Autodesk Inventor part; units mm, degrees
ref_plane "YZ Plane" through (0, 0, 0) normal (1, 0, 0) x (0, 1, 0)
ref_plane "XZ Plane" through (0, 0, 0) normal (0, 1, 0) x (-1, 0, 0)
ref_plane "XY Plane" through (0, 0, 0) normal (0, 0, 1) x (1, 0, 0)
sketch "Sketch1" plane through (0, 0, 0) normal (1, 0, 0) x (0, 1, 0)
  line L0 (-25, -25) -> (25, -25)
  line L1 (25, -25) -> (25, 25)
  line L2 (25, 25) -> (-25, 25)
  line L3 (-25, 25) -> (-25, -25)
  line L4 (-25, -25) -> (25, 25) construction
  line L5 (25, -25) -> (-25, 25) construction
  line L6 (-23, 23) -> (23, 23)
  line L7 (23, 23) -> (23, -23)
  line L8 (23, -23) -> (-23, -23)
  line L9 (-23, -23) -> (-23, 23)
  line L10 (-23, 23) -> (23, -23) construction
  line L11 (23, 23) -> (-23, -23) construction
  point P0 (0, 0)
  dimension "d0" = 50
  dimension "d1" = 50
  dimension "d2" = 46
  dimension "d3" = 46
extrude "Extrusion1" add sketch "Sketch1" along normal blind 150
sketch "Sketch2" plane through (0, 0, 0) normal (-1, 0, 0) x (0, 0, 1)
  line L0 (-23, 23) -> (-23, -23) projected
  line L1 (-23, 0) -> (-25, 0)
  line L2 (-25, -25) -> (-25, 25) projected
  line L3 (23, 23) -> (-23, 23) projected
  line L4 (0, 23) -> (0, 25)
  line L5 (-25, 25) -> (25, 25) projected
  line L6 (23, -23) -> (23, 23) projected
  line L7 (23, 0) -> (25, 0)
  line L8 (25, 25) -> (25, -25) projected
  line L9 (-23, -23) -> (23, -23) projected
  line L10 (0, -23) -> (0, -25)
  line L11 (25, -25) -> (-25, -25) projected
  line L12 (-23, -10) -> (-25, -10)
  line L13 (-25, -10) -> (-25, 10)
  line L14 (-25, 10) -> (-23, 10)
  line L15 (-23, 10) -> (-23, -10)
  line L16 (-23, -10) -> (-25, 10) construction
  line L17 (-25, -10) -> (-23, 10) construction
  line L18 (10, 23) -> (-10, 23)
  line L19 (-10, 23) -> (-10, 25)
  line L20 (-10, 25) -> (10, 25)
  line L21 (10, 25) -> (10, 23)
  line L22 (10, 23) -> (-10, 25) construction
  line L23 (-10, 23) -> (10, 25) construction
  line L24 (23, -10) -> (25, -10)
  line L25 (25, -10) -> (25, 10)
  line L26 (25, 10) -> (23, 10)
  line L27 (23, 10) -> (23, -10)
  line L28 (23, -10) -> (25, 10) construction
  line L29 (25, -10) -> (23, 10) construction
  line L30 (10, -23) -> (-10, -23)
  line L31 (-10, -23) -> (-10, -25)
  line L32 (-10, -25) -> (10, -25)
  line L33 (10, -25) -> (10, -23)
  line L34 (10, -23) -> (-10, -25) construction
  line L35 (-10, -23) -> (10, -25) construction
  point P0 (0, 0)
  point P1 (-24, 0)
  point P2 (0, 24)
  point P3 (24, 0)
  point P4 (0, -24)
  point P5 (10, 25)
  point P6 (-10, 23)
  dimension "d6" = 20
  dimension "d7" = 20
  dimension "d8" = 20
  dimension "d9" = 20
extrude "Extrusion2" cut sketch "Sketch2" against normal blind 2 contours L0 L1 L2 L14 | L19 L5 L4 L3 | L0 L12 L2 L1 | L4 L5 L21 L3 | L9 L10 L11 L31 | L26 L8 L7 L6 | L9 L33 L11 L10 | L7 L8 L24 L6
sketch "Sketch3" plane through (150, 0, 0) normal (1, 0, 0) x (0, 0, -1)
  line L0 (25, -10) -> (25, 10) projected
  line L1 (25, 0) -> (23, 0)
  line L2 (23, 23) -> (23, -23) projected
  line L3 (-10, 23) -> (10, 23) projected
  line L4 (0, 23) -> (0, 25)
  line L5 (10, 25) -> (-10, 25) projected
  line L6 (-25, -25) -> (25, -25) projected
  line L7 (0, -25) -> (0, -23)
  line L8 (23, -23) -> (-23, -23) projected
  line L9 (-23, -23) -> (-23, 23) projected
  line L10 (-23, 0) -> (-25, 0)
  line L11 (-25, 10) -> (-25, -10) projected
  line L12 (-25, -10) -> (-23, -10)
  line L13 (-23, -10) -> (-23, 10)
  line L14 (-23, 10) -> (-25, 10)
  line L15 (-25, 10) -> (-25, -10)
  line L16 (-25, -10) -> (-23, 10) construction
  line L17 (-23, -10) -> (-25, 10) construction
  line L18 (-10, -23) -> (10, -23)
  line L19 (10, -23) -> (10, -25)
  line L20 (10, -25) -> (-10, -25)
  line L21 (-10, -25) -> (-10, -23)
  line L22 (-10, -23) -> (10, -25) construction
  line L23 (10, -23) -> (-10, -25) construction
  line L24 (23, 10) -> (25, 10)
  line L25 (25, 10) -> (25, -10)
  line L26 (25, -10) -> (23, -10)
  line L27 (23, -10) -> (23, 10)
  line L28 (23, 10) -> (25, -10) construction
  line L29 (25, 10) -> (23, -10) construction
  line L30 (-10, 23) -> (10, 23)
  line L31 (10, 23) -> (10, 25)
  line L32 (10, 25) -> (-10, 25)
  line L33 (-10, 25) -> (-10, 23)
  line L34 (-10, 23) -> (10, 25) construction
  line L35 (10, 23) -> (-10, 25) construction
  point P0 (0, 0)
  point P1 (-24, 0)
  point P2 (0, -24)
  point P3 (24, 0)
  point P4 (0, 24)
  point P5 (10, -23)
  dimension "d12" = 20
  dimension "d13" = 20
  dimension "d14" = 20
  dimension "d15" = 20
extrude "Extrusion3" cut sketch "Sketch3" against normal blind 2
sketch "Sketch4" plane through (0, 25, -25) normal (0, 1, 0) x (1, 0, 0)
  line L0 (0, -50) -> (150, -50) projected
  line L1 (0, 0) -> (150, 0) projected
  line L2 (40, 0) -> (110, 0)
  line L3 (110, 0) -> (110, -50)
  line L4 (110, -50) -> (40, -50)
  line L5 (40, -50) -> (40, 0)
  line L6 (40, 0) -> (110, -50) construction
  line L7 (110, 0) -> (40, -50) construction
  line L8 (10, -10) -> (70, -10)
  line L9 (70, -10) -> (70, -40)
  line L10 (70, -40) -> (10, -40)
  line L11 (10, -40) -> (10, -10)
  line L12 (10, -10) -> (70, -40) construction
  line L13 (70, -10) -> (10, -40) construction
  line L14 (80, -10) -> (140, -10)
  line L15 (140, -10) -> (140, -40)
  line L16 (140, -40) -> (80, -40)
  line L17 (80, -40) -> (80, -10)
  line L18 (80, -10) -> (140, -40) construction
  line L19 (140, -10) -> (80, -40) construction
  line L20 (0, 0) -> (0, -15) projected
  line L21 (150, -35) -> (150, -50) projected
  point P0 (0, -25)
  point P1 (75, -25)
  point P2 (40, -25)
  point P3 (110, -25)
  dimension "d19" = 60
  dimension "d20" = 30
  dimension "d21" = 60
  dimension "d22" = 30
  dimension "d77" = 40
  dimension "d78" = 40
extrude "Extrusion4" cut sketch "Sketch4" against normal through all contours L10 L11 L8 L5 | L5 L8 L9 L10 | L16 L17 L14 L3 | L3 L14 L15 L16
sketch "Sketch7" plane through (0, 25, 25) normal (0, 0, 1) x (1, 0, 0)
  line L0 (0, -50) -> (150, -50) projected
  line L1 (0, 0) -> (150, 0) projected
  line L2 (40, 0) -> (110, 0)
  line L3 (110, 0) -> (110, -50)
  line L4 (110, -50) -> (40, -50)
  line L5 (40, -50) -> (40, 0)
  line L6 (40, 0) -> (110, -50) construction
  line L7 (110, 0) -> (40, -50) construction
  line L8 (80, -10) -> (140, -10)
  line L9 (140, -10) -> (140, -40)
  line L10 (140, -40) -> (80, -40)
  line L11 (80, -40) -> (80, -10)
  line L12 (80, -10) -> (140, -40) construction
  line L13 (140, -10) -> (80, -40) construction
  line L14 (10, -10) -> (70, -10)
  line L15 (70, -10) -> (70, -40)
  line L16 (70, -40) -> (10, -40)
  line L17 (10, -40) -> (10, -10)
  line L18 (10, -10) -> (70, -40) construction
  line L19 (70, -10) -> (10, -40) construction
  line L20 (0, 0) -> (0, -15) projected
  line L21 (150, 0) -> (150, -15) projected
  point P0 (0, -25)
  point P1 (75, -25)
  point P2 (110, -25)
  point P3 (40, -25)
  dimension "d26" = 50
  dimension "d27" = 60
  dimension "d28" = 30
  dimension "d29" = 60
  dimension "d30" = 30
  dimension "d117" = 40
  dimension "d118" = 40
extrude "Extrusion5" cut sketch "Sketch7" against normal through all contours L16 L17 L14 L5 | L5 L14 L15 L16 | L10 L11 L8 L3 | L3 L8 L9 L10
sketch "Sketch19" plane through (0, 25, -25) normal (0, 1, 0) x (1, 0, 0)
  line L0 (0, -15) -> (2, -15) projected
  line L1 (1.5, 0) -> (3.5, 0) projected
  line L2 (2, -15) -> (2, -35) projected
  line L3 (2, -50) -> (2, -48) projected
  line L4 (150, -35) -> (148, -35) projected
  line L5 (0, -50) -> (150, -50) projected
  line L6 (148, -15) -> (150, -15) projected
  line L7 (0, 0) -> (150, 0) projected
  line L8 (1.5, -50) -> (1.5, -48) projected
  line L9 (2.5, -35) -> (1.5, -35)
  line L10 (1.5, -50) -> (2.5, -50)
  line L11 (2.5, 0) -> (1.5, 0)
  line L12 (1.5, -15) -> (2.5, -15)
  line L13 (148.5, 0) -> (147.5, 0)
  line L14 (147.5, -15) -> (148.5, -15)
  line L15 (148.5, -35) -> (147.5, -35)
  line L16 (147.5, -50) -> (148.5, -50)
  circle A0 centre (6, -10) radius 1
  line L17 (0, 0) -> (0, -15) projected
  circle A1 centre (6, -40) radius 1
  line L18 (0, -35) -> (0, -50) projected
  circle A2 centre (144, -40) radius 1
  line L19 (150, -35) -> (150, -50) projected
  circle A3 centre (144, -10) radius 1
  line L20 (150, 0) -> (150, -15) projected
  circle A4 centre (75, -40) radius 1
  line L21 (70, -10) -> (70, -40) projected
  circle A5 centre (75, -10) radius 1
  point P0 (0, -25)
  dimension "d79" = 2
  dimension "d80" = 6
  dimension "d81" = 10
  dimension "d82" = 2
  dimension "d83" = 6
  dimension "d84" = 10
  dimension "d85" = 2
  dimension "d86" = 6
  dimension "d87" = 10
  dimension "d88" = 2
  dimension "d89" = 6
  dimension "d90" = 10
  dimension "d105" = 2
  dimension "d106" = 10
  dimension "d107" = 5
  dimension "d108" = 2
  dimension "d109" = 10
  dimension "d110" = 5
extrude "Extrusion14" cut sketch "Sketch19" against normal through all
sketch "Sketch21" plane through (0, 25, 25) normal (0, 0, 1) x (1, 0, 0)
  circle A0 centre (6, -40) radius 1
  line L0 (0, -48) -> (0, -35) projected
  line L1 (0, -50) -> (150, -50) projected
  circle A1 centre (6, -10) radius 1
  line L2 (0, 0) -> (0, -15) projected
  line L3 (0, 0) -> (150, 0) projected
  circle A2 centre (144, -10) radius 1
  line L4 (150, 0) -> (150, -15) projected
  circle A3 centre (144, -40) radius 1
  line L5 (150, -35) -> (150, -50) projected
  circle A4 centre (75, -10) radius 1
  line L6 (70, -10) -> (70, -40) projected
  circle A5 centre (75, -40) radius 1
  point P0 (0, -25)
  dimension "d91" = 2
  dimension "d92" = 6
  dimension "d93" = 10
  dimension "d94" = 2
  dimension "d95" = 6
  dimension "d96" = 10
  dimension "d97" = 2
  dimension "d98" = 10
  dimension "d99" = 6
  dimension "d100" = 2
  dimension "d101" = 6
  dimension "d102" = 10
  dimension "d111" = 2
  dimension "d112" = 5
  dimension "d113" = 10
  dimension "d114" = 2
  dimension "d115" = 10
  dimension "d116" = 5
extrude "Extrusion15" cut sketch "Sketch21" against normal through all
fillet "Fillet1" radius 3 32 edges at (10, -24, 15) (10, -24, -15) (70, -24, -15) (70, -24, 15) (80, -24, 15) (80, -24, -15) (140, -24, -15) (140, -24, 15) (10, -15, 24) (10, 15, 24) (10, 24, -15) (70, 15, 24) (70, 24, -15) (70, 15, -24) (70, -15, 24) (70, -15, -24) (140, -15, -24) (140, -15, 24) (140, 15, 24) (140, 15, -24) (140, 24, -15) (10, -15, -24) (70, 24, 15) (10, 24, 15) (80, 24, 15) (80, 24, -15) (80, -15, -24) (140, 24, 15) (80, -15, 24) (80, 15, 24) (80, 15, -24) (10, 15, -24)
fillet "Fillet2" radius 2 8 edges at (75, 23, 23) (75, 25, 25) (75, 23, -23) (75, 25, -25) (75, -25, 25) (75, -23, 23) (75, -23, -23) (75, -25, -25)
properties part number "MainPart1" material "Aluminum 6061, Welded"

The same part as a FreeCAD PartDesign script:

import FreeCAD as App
import Part
import Sketcher
Q = App.Units.Quantity


def edges_at(feature, points):
    """Names of the edges that pass closest to the given points."""
    edges = feature.Shape.Edges
    near = lambda p: min(range(len(edges)), key=lambda i: edges[i].distToShape(Part.Vertex(*p))[0])
    return sorted({f"Edge{near(p) + 1}" for p in points})

doc = App.newDocument("Part")
body = doc.addObject("PartDesign::Body", "Body")

sketch1 = body.newObject("Sketcher::SketchObject", "Sketch")
sketch1.AttachmentSupport = (doc.getObject("YZ_Plane"), [""])
sketch1.MapMode = "FlatFace"
sketch1.addGeometry(Part.LineSegment(App.Vector(-25, 25, 0), App.Vector(-25, -25, 0)), False)
sketch1.addGeometry(Part.LineSegment(App.Vector(-25, -25, 0), App.Vector(25, -25, 0)), False)
sketch1.addGeometry(Part.LineSegment(App.Vector(25, -25, 0), App.Vector(25, 25, 0)), False)
sketch1.addGeometry(Part.LineSegment(App.Vector(25, 25, 0), App.Vector(-25, 25, 0)), False)
sketch1.addGeometry(Part.LineSegment(App.Vector(-23, -23, 0), App.Vector(-23, 23, 0)), False)
sketch1.addGeometry(Part.LineSegment(App.Vector(-23, 23, 0), App.Vector(23, 23, 0)), False)
sketch1.addGeometry(Part.LineSegment(App.Vector(23, 23, 0), App.Vector(23, -23, 0)), False)
sketch1.addGeometry(Part.LineSegment(App.Vector(23, -23, 0), App.Vector(-23, -23, 0)), False)
sketch1.addConstraint(Sketcher.Constraint("Coincident", 0, 2, 1, 1))
sketch1.addConstraint(Sketcher.Constraint("Coincident", 1, 2, 2, 1))
sketch1.addConstraint(Sketcher.Constraint("Coincident", 2, 2, 3, 1))
sketch1.addConstraint(Sketcher.Constraint("Coincident", 3, 2, 0, 1))
sketch1.addConstraint(Sketcher.Constraint("Coincident", 4, 2, 5, 1))
sketch1.addConstraint(Sketcher.Constraint("Coincident", 5, 2, 6, 1))
sketch1.addConstraint(Sketcher.Constraint("Coincident", 6, 2, 7, 1))
sketch1.addConstraint(Sketcher.Constraint("Coincident", 7, 2, 4, 1))
sketch1.addConstraint(Sketcher.Constraint("Vertical", 0))
sketch1.addConstraint(Sketcher.Constraint("Horizontal", 1))
sketch1.addConstraint(Sketcher.Constraint("Vertical", 2))
sketch1.addConstraint(Sketcher.Constraint("Horizontal", 3))
sketch1.addConstraint(Sketcher.Constraint("Vertical", 4))
sketch1.addConstraint(Sketcher.Constraint("Horizontal", 5))
sketch1.addConstraint(Sketcher.Constraint("Vertical", 6))
sketch1.addConstraint(Sketcher.Constraint("Horizontal", 7))
sketch1.addConstraint(Sketcher.Constraint("Symmetric", 0, 2, 2, 2, -1, 1))
sketch1.addConstraint(Sketcher.Constraint("Symmetric", 4, 2, 6, 2, -1, 1))
sketch1.addConstraint(Sketcher.Constraint("Equal", 3, 0))
sketch1.addConstraint(Sketcher.Constraint("Equal", 7, 4))
sketch1.addConstraint(Sketcher.Constraint("DistanceX", 1, 1, 1, 2, Q("50 mm")))
sketch1.addConstraint(Sketcher.Constraint("DistanceX", 5, 1, 5, 2, Q("46 mm")))
pad1 = body.newObject("PartDesign::Pad", "Pad")
pad1.Profile = sketch1
pad1.Length = 150

sketch2 = body.newObject("Sketcher::SketchObject", "Sketch001")
sketch2.AttachmentSupport = (doc.getObject("YZ_Plane"), [""])
sketch2.MapMode = "FlatFace"
sketch2.addGeometry(Part.LineSegment(App.Vector(10, -23, 0), App.Vector(10, -25, 0)), False)
sketch2.addGeometry(Part.LineSegment(App.Vector(10, -25, 0), App.Vector(-10, -25, 0)), False)
sketch2.addGeometry(Part.LineSegment(App.Vector(-10, -25, 0), App.Vector(-10, -23, 0)), False)
sketch2.addGeometry(Part.LineSegment(App.Vector(-10, -23, 0), App.Vector(10, -23, 0)), False)
sketch2.addGeometry(Part.LineSegment(App.Vector(25, -10, 0), App.Vector(23, -10, 0)), False)
sketch2.addGeometry(Part.LineSegment(App.Vector(23, -10, 0), App.Vector(23, 10, 0)), False)
sketch2.addGeometry(Part.LineSegment(App.Vector(23, 10, 0), App.Vector(25, 10, 0)), False)
sketch2.addGeometry(Part.LineSegment(App.Vector(25, 10, 0), App.Vector(25, -10, 0)), False)
sketch2.addGeometry(Part.LineSegment(App.Vector(-23, -10, 0), App.Vector(-25, -10, 0)), False)
sketch2.addGeometry(Part.LineSegment(App.Vector(-25, -10, 0), App.Vector(-25, 10, 0)), False)
sketch2.addGeometry(Part.LineSegment(App.Vector(-25, 10, 0), App.Vector(-23, 10, 0)), False)
sketch2.addGeometry(Part.LineSegment(App.Vector(-23, 10, 0), App.Vector(-23, -10, 0)), False)
sketch2.addGeometry(Part.LineSegment(App.Vector(10, 25, 0), App.Vector(10, 23, 0)), False)
sketch2.addGeometry(Part.LineSegment(App.Vector(10, 23, 0), App.Vector(-10, 23, 0)), False)
sketch2.addGeometry(Part.LineSegment(App.Vector(-10, 23, 0), App.Vector(-10, 25, 0)), False)
sketch2.addGeometry(Part.LineSegment(App.Vector(-10, 25, 0), App.Vector(10, 25, 0)), False)
sketch2.addConstraint(Sketcher.Constraint("Coincident", 0, 2, 1, 1))
sketch2.addConstraint(Sketcher.Constraint("Coincident", 1, 2, 2, 1))
sketch2.addConstraint(Sketcher.Constraint("Coincident", 2, 2, 3, 1))
sketch2.addConstraint(Sketcher.Constraint("Coincident", 3, 2, 0, 1))
sketch2.addConstraint(Sketcher.Constraint("Coincident", 4, 2, 5, 1))
sketch2.addConstraint(Sketcher.Constraint("Coincident", 5, 2, 6, 1))
sketch2.addConstraint(Sketcher.Constraint("Coincident", 6, 2, 7, 1))
sketch2.addConstraint(Sketcher.Constraint("Coincident", 7, 2, 4, 1))
sketch2.addConstraint(Sketcher.Constraint("Coincident", 8, 2, 9, 1))
sketch2.addConstraint(Sketcher.Constraint("Coincident", 9, 2, 10, 1))
sketch2.addConstraint(Sketcher.Constraint("Coincident", 10, 2, 11, 1))
sketch2.addConstraint(Sketcher.Constraint("Coincident", 11, 2, 8, 1))
sketch2.addConstraint(Sketcher.Constraint("Coincident", 12, 2, 13, 1))
sketch2.addConstraint(Sketcher.Constraint("Coincident", 13, 2, 14, 1))
sketch2.addConstraint(Sketcher.Constraint("Coincident", 14, 2, 15, 1))
sketch2.addConstraint(Sketcher.Constraint("Coincident", 15, 2, 12, 1))
sketch2.addConstraint(Sketcher.Constraint("Vertical", 0))
sketch2.addConstraint(Sketcher.Constraint("Horizontal", 1))
sketch2.addConstraint(Sketcher.Constraint("Vertical", 2))
sketch2.addConstraint(Sketcher.Constraint("Horizontal", 3))
sketch2.addConstraint(Sketcher.Constraint("Horizontal", 4))
sketch2.addConstraint(Sketcher.Constraint("Vertical", 5))
sketch2.addConstraint(Sketcher.Constraint("Horizontal", 6))
sketch2.addConstraint(Sketcher.Constraint("Vertical", 7))
sketch2.addConstraint(Sketcher.Constraint("Horizontal", 8))
sketch2.addConstraint(Sketcher.Constraint("Vertical", 9))
sketch2.addConstraint(Sketcher.Constraint("Horizontal", 10))
sketch2.addConstraint(Sketcher.Constraint("Vertical", 11))
sketch2.addConstraint(Sketcher.Constraint("Vertical", 12))
sketch2.addConstraint(Sketcher.Constraint("Horizontal", 13))
sketch2.addConstraint(Sketcher.Constraint("Vertical", 14))
sketch2.addConstraint(Sketcher.Constraint("Horizontal", 15))
sketch2.addConstraint(Sketcher.Constraint("Symmetric", 6, 2, 8, 2, -1, 1))
sketch2.addConstraint(Sketcher.Constraint("Symmetric", 4, 2, 10, 2, -1, 1))
sketch2.addConstraint(Sketcher.Constraint("Symmetric", 2, 2, 12, 2, -1, 1))
sketch2.addConstraint(Sketcher.Constraint("Symmetric", 0, 2, 14, 2, -1, 1))
sketch2.addConstraint(Sketcher.Constraint("Horizontal", 7, 2, 8, 2))
sketch2.addConstraint(Sketcher.Constraint("Vertical", 3, 2, 12, 2))
sketch2.addConstraint(Sketcher.Constraint("Equal", 10, 0))
sketch2.addConstraint(Sketcher.Constraint("Equal", 15, 5))
sketch2.addConstraint(Sketcher.Constraint("DistanceX", 1, 2, 1, 1, Q("20 mm")))
sketch2.addConstraint(Sketcher.Constraint("DistanceX", 4, 2, 4, 1, Q("2 mm")))
sketch2.addConstraint(Sketcher.Constraint("DistanceY", 0, 2, -1, 1, Q("25 mm")))
sketch2.addConstraint(Sketcher.Constraint("DistanceX", -1, 1, 4, 2, Q("23 mm")))
pocket1 = body.newObject("PartDesign::Pocket", "Pocket")
pocket1.Profile = sketch2
pocket1.Length = 2
pocket1.Reversed = True

sketch3 = body.newObject("Sketcher::SketchObject", "Sketch002")
sketch3.AttachmentSupport = (doc.getObject("YZ_Plane"), [""])
sketch3.MapMode = "FlatFace"
sketch3.AttachmentOffset = App.Placement(App.Vector(0, 0, 150), App.Rotation())
sketch3.addGeometry(Part.LineSegment(App.Vector(-10, -23, 0), App.Vector(-10, -25, 0)), False)
sketch3.addGeometry(Part.LineSegment(App.Vector(-10, -25, 0), App.Vector(10, -25, 0)), False)
sketch3.addGeometry(Part.LineSegment(App.Vector(10, -25, 0), App.Vector(10, -23, 0)), False)
sketch3.addGeometry(Part.LineSegment(App.Vector(10, -23, 0), App.Vector(-10, -23, 0)), False)
sketch3.addGeometry(Part.LineSegment(App.Vector(-10, 25, 0), App.Vector(-10, 23, 0)), False)
sketch3.addGeometry(Part.LineSegment(App.Vector(-10, 23, 0), App.Vector(10, 23, 0)), False)
sketch3.addGeometry(Part.LineSegment(App.Vector(10, 23, 0), App.Vector(10, 25, 0)), False)
sketch3.addGeometry(Part.LineSegment(App.Vector(10, 25, 0), App.Vector(-10, 25, 0)), False)
sketch3.addGeometry(Part.LineSegment(App.Vector(-25, -10, 0), App.Vector(-23, -10, 0)), False)
sketch3.addGeometry(Part.LineSegment(App.Vector(-23, -10, 0), App.Vector(-23, 10, 0)), False)
sketch3.addGeometry(Part.LineSegment(App.Vector(-23, 10, 0), App.Vector(-25, 10, 0)), False)
sketch3.addGeometry(Part.LineSegment(App.Vector(-25, 10, 0), App.Vector(-25, -10, 0)), False)
sketch3.addGeometry(Part.LineSegment(App.Vector(25, 10, 0), App.Vector(23, 10, 0)), False)
sketch3.addGeometry(Part.LineSegment(App.Vector(23, 10, 0), App.Vector(23, -10, 0)), False)
sketch3.addGeometry(Part.LineSegment(App.Vector(23, -10, 0), App.Vector(25, -10, 0)), False)
sketch3.addGeometry(Part.LineSegment(App.Vector(25, -10, 0), App.Vector(25, 10, 0)), False)
sketch3.addConstraint(Sketcher.Constraint("Coincident", 0, 2, 1, 1))
sketch3.addConstraint(Sketcher.Constraint("Coincident", 1, 2, 2, 1))
sketch3.addConstraint(Sketcher.Constraint("Coincident", 2, 2, 3, 1))
sketch3.addConstraint(Sketcher.Constraint("Coincident", 3, 2, 0, 1))
sketch3.addConstraint(Sketcher.Constraint("Coincident", 4, 2, 5, 1))
sketch3.addConstraint(Sketcher.Constraint("Coincident", 5, 2, 6, 1))
sketch3.addConstraint(Sketcher.Constraint("Coincident", 6, 2, 7, 1))
sketch3.addConstraint(Sketcher.Constraint("Coincident", 7, 2, 4, 1))
sketch3.addConstraint(Sketcher.Constraint("Coincident", 8, 2, 9, 1))
sketch3.addConstraint(Sketcher.Constraint("Coincident", 9, 2, 10, 1))
sketch3.addConstraint(Sketcher.Constraint("Coincident", 10, 2, 11, 1))
sketch3.addConstraint(Sketcher.Constraint("Coincident", 11, 2, 8, 1))
sketch3.addConstraint(Sketcher.Constraint("Coincident", 12, 2, 13, 1))
sketch3.addConstraint(Sketcher.Constraint("Coincident", 13, 2, 14, 1))
sketch3.addConstraint(Sketcher.Constraint("Coincident", 14, 2, 15, 1))
sketch3.addConstraint(Sketcher.Constraint("Coincident", 15, 2, 12, 1))
sketch3.addConstraint(Sketcher.Constraint("Vertical", 0))
sketch3.addConstraint(Sketcher.Constraint("Horizontal", 1))
sketch3.addConstraint(Sketcher.Constraint("Vertical", 2))
sketch3.addConstraint(Sketcher.Constraint("Horizontal", 3))
sketch3.addConstraint(Sketcher.Constraint("Vertical", 4))
sketch3.addConstraint(Sketcher.Constraint("Horizontal", 5))
sketch3.addConstraint(Sketcher.Constraint("Vertical", 6))
sketch3.addConstraint(Sketcher.Constraint("Horizontal", 7))
sketch3.addConstraint(Sketcher.Constraint("Horizontal", 8))
sketch3.addConstraint(Sketcher.Constraint("Vertical", 9))
sketch3.addConstraint(Sketcher.Constraint("Horizontal", 10))
sketch3.addConstraint(Sketcher.Constraint("Vertical", 11))
sketch3.addConstraint(Sketcher.Constraint("Horizontal", 12))
sketch3.addConstraint(Sketcher.Constraint("Vertical", 13))
sketch3.addConstraint(Sketcher.Constraint("Horizontal", 14))
sketch3.addConstraint(Sketcher.Constraint("Vertical", 15))
sketch3.addConstraint(Sketcher.Constraint("Symmetric", 2, 2, 4, 2, -1, 1))
sketch3.addConstraint(Sketcher.Constraint("Symmetric", 0, 2, 6, 2, -1, 1))
sketch3.addConstraint(Sketcher.Constraint("Symmetric", 8, 2, 12, 2, -1, 1))
sketch3.addConstraint(Sketcher.Constraint("Symmetric", 10, 2, 14, 2, -1, 1))
sketch3.addConstraint(Sketcher.Constraint("Horizontal", 10, 2, 12, 2))
sketch3.addConstraint(Sketcher.Constraint("Vertical", 3, 2, 4, 2))
sketch3.addConstraint(Sketcher.Constraint("Equal", 14, 0))
sketch3.addConstraint(Sketcher.Constraint("Equal", 7, 9))
sketch3.addConstraint(Sketcher.Constraint("DistanceX", 1, 1, 1, 2, Q("20 mm")))
sketch3.addConstraint(Sketcher.Constraint("DistanceX", 8, 1, 8, 2, Q("2 mm")))
sketch3.addConstraint(Sketcher.Constraint("DistanceY", 0, 2, -1, 1, Q("25 mm")))
sketch3.addConstraint(Sketcher.Constraint("DistanceX", 8, 2, -1, 1, Q("23 mm")))
pocket2 = body.newObject("PartDesign::Pocket", "Pocket001")
pocket2.Profile = sketch3
pocket2.Length = 2

sketch4 = body.newObject("Sketcher::SketchObject", "Sketch003")
sketch4.AttachmentSupport = (doc.getObject("XZ_Plane"), [""])
sketch4.MapMode = "FlatFace"
sketch4.AttachmentOffset = App.Placement(App.Vector(0, 0, -25), App.Rotation())
sketch4.addGeometry(Part.LineSegment(App.Vector(10, 15, 0), App.Vector(70, 15, 0)), False)
sketch4.addGeometry(Part.LineSegment(App.Vector(70, 15, 0), App.Vector(70, -15, 0)), False)
sketch4.addGeometry(Part.LineSegment(App.Vector(70, -15, 0), App.Vector(10, -15, 0)), False)
sketch4.addGeometry(Part.LineSegment(App.Vector(10, -15, 0), App.Vector(10, 15, 0)), False)
sketch4.addGeometry(Part.LineSegment(App.Vector(80, 15, 0), App.Vector(140, 15, 0)), False)
sketch4.addGeometry(Part.LineSegment(App.Vector(140, 15, 0), App.Vector(140, -15, 0)), False)
sketch4.addGeometry(Part.LineSegment(App.Vector(140, -15, 0), App.Vector(80, -15, 0)), False)
sketch4.addGeometry(Part.LineSegment(App.Vector(80, -15, 0), App.Vector(80, 15, 0)), False)
sketch4.addConstraint(Sketcher.Constraint("Coincident", 0, 2, 1, 1))
sketch4.addConstraint(Sketcher.Constraint("Coincident", 1, 2, 2, 1))
sketch4.addConstraint(Sketcher.Constraint("Coincident", 2, 2, 3, 1))
sketch4.addConstraint(Sketcher.Constraint("Coincident", 3, 2, 0, 1))
sketch4.addConstraint(Sketcher.Constraint("Coincident", 4, 2, 5, 1))
sketch4.addConstraint(Sketcher.Constraint("Coincident", 5, 2, 6, 1))
sketch4.addConstraint(Sketcher.Constraint("Coincident", 6, 2, 7, 1))
sketch4.addConstraint(Sketcher.Constraint("Coincident", 7, 2, 4, 1))
sketch4.addConstraint(Sketcher.Constraint("Horizontal", 0))
sketch4.addConstraint(Sketcher.Constraint("Vertical", 1))
sketch4.addConstraint(Sketcher.Constraint("Horizontal", 2))
sketch4.addConstraint(Sketcher.Constraint("Vertical", 3))
sketch4.addConstraint(Sketcher.Constraint("Horizontal", 4))
sketch4.addConstraint(Sketcher.Constraint("Vertical", 5))
sketch4.addConstraint(Sketcher.Constraint("Horizontal", 6))
sketch4.addConstraint(Sketcher.Constraint("Vertical", 7))
sketch4.addConstraint(Sketcher.Constraint("Horizontal", 3, 2, 4, 2))
sketch4.addConstraint(Sketcher.Constraint("Horizontal", 2, 2, 5, 2))
sketch4.addConstraint(Sketcher.Constraint("Equal", 2, 4))
sketch4.addConstraint(Sketcher.Constraint("DistanceX", 0, 1, 0, 2, Q("60 mm")))
sketch4.addConstraint(Sketcher.Constraint("DistanceY", 1, 2, 1, 1, Q("30 mm")))
sketch4.addConstraint(Sketcher.Constraint("DistanceX", -1, 1, 0, 2, Q("70 mm")))
sketch4.addConstraint(Sketcher.Constraint("DistanceY", -1, 1, 0, 2, Q("15 mm")))
sketch4.addConstraint(Sketcher.Constraint("DistanceX", -1, 1, 4, 2, Q("140 mm")))
pocket3 = body.newObject("PartDesign::Pocket", "Pocket002")
pocket3.Profile = sketch4
pocket3.Type = "ThroughAll"
pocket3.Reversed = True

sketch5 = body.newObject("Sketcher::SketchObject", "Sketch004")
sketch5.AttachmentSupport = (doc.getObject("XY_Plane"), [""])
sketch5.MapMode = "FlatFace"
sketch5.AttachmentOffset = App.Placement(App.Vector(0, 0, 25), App.Rotation())
sketch5.addGeometry(Part.LineSegment(App.Vector(10, -15, 0), App.Vector(70, -15, 0)), False)
sketch5.addGeometry(Part.LineSegment(App.Vector(70, -15, 0), App.Vector(70, 15, 0)), False)
sketch5.addGeometry(Part.LineSegment(App.Vector(70, 15, 0), App.Vector(10, 15, 0)), False)
sketch5.addGeometry(Part.LineSegment(App.Vector(10, 15, 0), App.Vector(10, -15, 0)), False)
sketch5.addGeometry(Part.LineSegment(App.Vector(80, -15, 0), App.Vector(140, -15, 0)), False)
sketch5.addGeometry(Part.LineSegment(App.Vector(140, -15, 0), App.Vector(140, 15, 0)), False)
sketch5.addGeometry(Part.LineSegment(App.Vector(140, 15, 0), App.Vector(80, 15, 0)), False)
sketch5.addGeometry(Part.LineSegment(App.Vector(80, 15, 0), App.Vector(80, -15, 0)), False)
sketch5.addConstraint(Sketcher.Constraint("Coincident", 0, 2, 1, 1))
sketch5.addConstraint(Sketcher.Constraint("Coincident", 1, 2, 2, 1))
sketch5.addConstraint(Sketcher.Constraint("Coincident", 2, 2, 3, 1))
sketch5.addConstraint(Sketcher.Constraint("Coincident", 3, 2, 0, 1))
sketch5.addConstraint(Sketcher.Constraint("Coincident", 4, 2, 5, 1))
sketch5.addConstraint(Sketcher.Constraint("Coincident", 5, 2, 6, 1))
sketch5.addConstraint(Sketcher.Constraint("Coincident", 6, 2, 7, 1))
sketch5.addConstraint(Sketcher.Constraint("Coincident", 7, 2, 4, 1))
sketch5.addConstraint(Sketcher.Constraint("Horizontal", 0))
sketch5.addConstraint(Sketcher.Constraint("Vertical", 1))
sketch5.addConstraint(Sketcher.Constraint("Horizontal", 2))
sketch5.addConstraint(Sketcher.Constraint("Vertical", 3))
sketch5.addConstraint(Sketcher.Constraint("Horizontal", 4))
sketch5.addConstraint(Sketcher.Constraint("Vertical", 5))
sketch5.addConstraint(Sketcher.Constraint("Horizontal", 6))
sketch5.addConstraint(Sketcher.Constraint("Vertical", 7))
sketch5.addConstraint(Sketcher.Constraint("Horizontal", 3, 2, 4, 2))
sketch5.addConstraint(Sketcher.Constraint("Horizontal", 2, 2, 5, 2))
sketch5.addConstraint(Sketcher.Constraint("Equal", 2, 4))
sketch5.addConstraint(Sketcher.Constraint("DistanceX", 0, 1, 0, 2, Q("60 mm")))
sketch5.addConstraint(Sketcher.Constraint("DistanceY", 1, 1, 1, 2, Q("30 mm")))
sketch5.addConstraint(Sketcher.Constraint("DistanceX", -1, 1, 0, 2, Q("70 mm")))
sketch5.addConstraint(Sketcher.Constraint("DistanceY", 0, 2, -1, 1, Q("15 mm")))
sketch5.addConstraint(Sketcher.Constraint("DistanceX", -1, 1, 4, 2, Q("140 mm")))
pocket4 = body.newObject("PartDesign::Pocket", "Pocket003")
pocket4.Profile = sketch5
pocket4.Type = "ThroughAll"

sketch6 = body.newObject("Sketcher::SketchObject", "Sketch005")
sketch6.AttachmentSupport = (doc.getObject("XZ_Plane"), [""])
sketch6.MapMode = "FlatFace"
sketch6.AttachmentOffset = App.Placement(App.Vector(0, 0, -25), App.Rotation())
sketch6.addGeometry(Part.Circle(App.Vector(6, -15, 0), App.Vector(0, 0, 1), 1), False)
sketch6.addGeometry(Part.Circle(App.Vector(6, 15, 0), App.Vector(0, 0, 1), 1), False)
sketch6.addGeometry(Part.Circle(App.Vector(144, 15, 0), App.Vector(0, 0, 1), 1), False)
sketch6.addGeometry(Part.Circle(App.Vector(144, -15, 0), App.Vector(0, 0, 1), 1), False)
sketch6.addGeometry(Part.Circle(App.Vector(75, 15, 0), App.Vector(0, 0, 1), 1), False)
sketch6.addGeometry(Part.Circle(App.Vector(75, -15, 0), App.Vector(0, 0, 1), 1), False)
sketch6.addConstraint(Sketcher.Constraint("Equal", 0, 1))
sketch6.addConstraint(Sketcher.Constraint("Equal", 1, 2))
sketch6.addConstraint(Sketcher.Constraint("Equal", 2, 3))
sketch6.addConstraint(Sketcher.Constraint("Equal", 3, 4))
sketch6.addConstraint(Sketcher.Constraint("Equal", 4, 5))
sketch6.addConstraint(Sketcher.Constraint("Symmetric", 0, 3, 1, 3, -1))
sketch6.addConstraint(Sketcher.Constraint("Symmetric", 2, 3, 3, 3, -1))
sketch6.addConstraint(Sketcher.Constraint("Symmetric", 4, 3, 5, 3, -1))
sketch6.addConstraint(Sketcher.Constraint("Horizontal", 1, 3, 2, 3))
sketch6.addConstraint(Sketcher.Constraint("Horizontal", 2, 3, 4, 3))
sketch6.addConstraint(Sketcher.Constraint("Diameter", 0, Q("2 mm")))
sketch6.addConstraint(Sketcher.Constraint("DistanceX", -1, 1, 0, 3, Q("6 mm")))
sketch6.addConstraint(Sketcher.Constraint("DistanceY", 0, 3, -1, 1, Q("15 mm")))
sketch6.addConstraint(Sketcher.Constraint("DistanceX", -1, 1, 2, 3, Q("144 mm")))
sketch6.addConstraint(Sketcher.Constraint("DistanceX", -1, 1, 4, 3, Q("75 mm")))
pocket5 = body.newObject("PartDesign::Pocket", "Pocket004")
pocket5.Profile = sketch6
pocket5.Type = "ThroughAll"
pocket5.Reversed = True

sketch7 = body.newObject("Sketcher::SketchObject", "Sketch006")
sketch7.AttachmentSupport = (doc.getObject("XY_Plane"), [""])
sketch7.MapMode = "FlatFace"
sketch7.AttachmentOffset = App.Placement(App.Vector(0, 0, 25), App.Rotation())
sketch7.addGeometry(Part.Circle(App.Vector(6, -15, 0), App.Vector(0, 0, 1), 1), False)
sketch7.addGeometry(Part.Circle(App.Vector(6, 15, 0), App.Vector(0, 0, 1), 1), False)
sketch7.addGeometry(Part.Circle(App.Vector(144, 15, 0), App.Vector(0, 0, 1), 1), False)
sketch7.addGeometry(Part.Circle(App.Vector(144, -15, 0), App.Vector(0, 0, 1), 1), False)
sketch7.addGeometry(Part.Circle(App.Vector(75, 15, 0), App.Vector(0, 0, 1), 1), False)
sketch7.addGeometry(Part.Circle(App.Vector(75, -15, 0), App.Vector(0, 0, 1), 1), False)
sketch7.addConstraint(Sketcher.Constraint("Equal", 0, 1))
sketch7.addConstraint(Sketcher.Constraint("Equal", 1, 2))
sketch7.addConstraint(Sketcher.Constraint("Equal", 2, 3))
sketch7.addConstraint(Sketcher.Constraint("Equal", 3, 4))
sketch7.addConstraint(Sketcher.Constraint("Equal", 4, 5))
sketch7.addConstraint(Sketcher.Constraint("Symmetric", 0, 3, 1, 3, -1))
sketch7.addConstraint(Sketcher.Constraint("Symmetric", 2, 3, 3, 3, -1))
sketch7.addConstraint(Sketcher.Constraint("Symmetric", 4, 3, 5, 3, -1))
sketch7.addConstraint(Sketcher.Constraint("Horizontal", 1, 3, 2, 3))
sketch7.addConstraint(Sketcher.Constraint("Horizontal", 2, 3, 4, 3))
sketch7.addConstraint(Sketcher.Constraint("Diameter", 0, Q("2 mm")))
sketch7.addConstraint(Sketcher.Constraint("DistanceX", -1, 1, 0, 3, Q("6 mm")))
sketch7.addConstraint(Sketcher.Constraint("DistanceY", 0, 3, -1, 1, Q("15 mm")))
sketch7.addConstraint(Sketcher.Constraint("DistanceX", -1, 1, 2, 3, Q("144 mm")))
sketch7.addConstraint(Sketcher.Constraint("DistanceX", -1, 1, 4, 3, Q("75 mm")))
pocket6 = body.newObject("PartDesign::Pocket", "Pocket005")
pocket6.Profile = sketch7
pocket6.Type = "ThroughAll"
doc.recompute()

fillet = body.newObject("PartDesign::Fillet", "Fillet")
fillet.Base = (pocket6, edges_at(pocket6, [
    (10, -24, 15),
    (10, -24, -15),
    (70, -24, -15),
    (70, -24, 15),
    (80, -24, 15),
    (80, -24, -15),
    (140, -24, -15),
    (140, -24, 15),
    (10, -15, 24),
    (10, 15, 24),
    (10, 24, -15),
    (70, 15, 24),
    (70, 24, -15),
    (70, 15, -24),
    (70, -15, 24),
    (70, -15, -24),
    (140, -15, -24),
    (140, -15, 24),
    (140, 15, 24),
    (140, 15, -24),
    (140, 24, -15),
    (10, -15, -24),
    (70, 24, 15),
    (10, 24, 15),
    (80, 24, 15),
    (80, 24, -15),
    (80, -15, -24),
    (140, 24, 15),
    (80, -15, 24),
    (80, 15, 24),
    (80, 15, -24),
    (10, 15, -24),
]))
fillet.Radius = 3
doc.recompute()

fillet2 = body.newObject("PartDesign::Fillet", "Fillet001")
fillet2.Base = (fillet, edges_at(fillet, [
    (75, 23, 23),
    (75, 25, 25),
    (75, 23, -23),
    (75, 25, -25),
    (75, -25, 25),
    (75, -23, 23),
    (75, -23, -23),
    (75, -25, -25),
]))
fillet2.Radius = 2

doc.recompute()
